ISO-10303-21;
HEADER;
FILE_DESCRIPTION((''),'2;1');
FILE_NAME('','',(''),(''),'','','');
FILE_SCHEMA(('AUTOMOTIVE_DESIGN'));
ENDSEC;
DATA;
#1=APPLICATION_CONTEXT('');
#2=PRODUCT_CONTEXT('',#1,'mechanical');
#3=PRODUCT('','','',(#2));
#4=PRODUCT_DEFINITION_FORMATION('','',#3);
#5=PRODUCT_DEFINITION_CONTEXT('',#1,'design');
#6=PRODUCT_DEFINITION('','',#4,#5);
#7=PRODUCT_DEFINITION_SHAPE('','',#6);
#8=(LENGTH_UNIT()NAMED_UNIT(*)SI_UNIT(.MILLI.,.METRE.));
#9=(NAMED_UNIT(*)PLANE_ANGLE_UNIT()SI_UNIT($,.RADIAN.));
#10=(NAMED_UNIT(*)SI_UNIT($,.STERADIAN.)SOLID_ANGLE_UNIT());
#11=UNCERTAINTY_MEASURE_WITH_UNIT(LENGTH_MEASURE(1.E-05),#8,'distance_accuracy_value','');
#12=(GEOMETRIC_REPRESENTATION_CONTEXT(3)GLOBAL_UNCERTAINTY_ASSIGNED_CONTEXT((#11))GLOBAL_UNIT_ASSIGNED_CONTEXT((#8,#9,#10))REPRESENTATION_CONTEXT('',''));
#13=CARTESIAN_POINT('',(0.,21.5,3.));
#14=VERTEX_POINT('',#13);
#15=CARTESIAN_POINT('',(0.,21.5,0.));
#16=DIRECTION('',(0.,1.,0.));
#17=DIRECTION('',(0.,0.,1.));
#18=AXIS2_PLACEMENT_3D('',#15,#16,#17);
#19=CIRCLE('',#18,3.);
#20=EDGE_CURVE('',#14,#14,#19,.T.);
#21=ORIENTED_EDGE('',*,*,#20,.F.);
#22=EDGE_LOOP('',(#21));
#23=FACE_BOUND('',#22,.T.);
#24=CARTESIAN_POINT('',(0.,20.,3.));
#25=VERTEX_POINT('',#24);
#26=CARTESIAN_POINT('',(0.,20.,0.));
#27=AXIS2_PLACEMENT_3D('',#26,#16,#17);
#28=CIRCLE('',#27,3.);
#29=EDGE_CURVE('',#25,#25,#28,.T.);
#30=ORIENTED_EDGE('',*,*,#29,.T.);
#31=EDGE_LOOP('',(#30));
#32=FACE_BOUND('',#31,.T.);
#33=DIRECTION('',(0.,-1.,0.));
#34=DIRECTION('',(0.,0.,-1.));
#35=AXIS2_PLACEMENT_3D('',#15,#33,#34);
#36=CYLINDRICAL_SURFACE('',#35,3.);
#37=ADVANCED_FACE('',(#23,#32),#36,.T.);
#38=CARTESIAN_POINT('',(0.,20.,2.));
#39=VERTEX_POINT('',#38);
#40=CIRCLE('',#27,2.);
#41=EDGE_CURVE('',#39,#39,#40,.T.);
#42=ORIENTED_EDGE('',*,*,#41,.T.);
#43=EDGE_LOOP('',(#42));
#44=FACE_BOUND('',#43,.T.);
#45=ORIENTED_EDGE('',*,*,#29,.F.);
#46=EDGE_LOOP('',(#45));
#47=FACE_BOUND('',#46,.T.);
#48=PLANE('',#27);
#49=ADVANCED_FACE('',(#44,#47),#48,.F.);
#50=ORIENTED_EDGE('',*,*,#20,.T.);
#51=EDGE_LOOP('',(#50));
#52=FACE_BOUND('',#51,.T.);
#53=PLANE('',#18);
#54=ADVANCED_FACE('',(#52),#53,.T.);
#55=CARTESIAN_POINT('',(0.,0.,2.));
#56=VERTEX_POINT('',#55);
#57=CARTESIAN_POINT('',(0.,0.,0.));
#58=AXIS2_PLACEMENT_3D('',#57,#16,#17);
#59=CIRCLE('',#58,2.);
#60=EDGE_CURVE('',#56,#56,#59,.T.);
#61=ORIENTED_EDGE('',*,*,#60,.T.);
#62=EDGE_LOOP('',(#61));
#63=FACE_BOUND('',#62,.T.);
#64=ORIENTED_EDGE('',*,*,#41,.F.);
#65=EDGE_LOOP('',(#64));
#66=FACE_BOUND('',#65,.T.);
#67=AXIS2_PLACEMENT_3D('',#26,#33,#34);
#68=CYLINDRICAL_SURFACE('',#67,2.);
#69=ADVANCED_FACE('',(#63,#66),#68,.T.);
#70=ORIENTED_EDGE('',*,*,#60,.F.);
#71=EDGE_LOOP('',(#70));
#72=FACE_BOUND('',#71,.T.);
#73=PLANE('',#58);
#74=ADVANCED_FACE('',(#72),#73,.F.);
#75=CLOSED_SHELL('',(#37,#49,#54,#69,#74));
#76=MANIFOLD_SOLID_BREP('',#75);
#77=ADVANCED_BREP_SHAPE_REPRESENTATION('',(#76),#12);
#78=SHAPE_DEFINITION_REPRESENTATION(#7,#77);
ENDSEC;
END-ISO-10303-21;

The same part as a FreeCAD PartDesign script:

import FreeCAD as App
import Part
import Sketcher

doc = App.newDocument("Part")
body = doc.addObject("PartDesign::Body", "Body")

sketch1 = body.newObject("Sketcher::SketchObject", "Sketch")
sketch1.AttachmentSupport = (doc.getObject("XZ_Plane"), [""])
sketch1.MapMode = "FlatFace"
sketch1.addGeometry(Part.Circle(App.Vector(0, 0, 0), App.Vector(0, 0, 1), 2), False)
sketch1.addConstraint([
    Sketcher.Constraint("Coincident", 0, 3, -1, 1),
    Sketcher.Constraint("Diameter", 0, 4.0),
])
pad1 = body.newObject("PartDesign::Pad", "Pad")
pad1.Profile = sketch1
pad1.Length = 20
pad1.Reversed = True

sketch2 = body.newObject("Sketcher::SketchObject", "Sketch001")
sketch2.AttachmentSupport = (doc.getObject("XZ_Plane"), [""])
sketch2.MapMode = "FlatFace"
sketch2.AttachmentOffset = App.Placement(App.Vector(0, 0, -20), App.Rotation())
sketch2.addGeometry(Part.Circle(App.Vector(0, 0, 0), App.Vector(0, 0, 1), 3), False)
sketch2.addConstraint([
    Sketcher.Constraint("Coincident", 0, 3, -1, 1),
    Sketcher.Constraint("Diameter", 0, 6.0),
])
pad2 = body.newObject("PartDesign::Pad", "Pad001")
pad2.Profile = sketch2
pad2.Length = 1.5
pad2.Reversed = True

doc.recompute()
